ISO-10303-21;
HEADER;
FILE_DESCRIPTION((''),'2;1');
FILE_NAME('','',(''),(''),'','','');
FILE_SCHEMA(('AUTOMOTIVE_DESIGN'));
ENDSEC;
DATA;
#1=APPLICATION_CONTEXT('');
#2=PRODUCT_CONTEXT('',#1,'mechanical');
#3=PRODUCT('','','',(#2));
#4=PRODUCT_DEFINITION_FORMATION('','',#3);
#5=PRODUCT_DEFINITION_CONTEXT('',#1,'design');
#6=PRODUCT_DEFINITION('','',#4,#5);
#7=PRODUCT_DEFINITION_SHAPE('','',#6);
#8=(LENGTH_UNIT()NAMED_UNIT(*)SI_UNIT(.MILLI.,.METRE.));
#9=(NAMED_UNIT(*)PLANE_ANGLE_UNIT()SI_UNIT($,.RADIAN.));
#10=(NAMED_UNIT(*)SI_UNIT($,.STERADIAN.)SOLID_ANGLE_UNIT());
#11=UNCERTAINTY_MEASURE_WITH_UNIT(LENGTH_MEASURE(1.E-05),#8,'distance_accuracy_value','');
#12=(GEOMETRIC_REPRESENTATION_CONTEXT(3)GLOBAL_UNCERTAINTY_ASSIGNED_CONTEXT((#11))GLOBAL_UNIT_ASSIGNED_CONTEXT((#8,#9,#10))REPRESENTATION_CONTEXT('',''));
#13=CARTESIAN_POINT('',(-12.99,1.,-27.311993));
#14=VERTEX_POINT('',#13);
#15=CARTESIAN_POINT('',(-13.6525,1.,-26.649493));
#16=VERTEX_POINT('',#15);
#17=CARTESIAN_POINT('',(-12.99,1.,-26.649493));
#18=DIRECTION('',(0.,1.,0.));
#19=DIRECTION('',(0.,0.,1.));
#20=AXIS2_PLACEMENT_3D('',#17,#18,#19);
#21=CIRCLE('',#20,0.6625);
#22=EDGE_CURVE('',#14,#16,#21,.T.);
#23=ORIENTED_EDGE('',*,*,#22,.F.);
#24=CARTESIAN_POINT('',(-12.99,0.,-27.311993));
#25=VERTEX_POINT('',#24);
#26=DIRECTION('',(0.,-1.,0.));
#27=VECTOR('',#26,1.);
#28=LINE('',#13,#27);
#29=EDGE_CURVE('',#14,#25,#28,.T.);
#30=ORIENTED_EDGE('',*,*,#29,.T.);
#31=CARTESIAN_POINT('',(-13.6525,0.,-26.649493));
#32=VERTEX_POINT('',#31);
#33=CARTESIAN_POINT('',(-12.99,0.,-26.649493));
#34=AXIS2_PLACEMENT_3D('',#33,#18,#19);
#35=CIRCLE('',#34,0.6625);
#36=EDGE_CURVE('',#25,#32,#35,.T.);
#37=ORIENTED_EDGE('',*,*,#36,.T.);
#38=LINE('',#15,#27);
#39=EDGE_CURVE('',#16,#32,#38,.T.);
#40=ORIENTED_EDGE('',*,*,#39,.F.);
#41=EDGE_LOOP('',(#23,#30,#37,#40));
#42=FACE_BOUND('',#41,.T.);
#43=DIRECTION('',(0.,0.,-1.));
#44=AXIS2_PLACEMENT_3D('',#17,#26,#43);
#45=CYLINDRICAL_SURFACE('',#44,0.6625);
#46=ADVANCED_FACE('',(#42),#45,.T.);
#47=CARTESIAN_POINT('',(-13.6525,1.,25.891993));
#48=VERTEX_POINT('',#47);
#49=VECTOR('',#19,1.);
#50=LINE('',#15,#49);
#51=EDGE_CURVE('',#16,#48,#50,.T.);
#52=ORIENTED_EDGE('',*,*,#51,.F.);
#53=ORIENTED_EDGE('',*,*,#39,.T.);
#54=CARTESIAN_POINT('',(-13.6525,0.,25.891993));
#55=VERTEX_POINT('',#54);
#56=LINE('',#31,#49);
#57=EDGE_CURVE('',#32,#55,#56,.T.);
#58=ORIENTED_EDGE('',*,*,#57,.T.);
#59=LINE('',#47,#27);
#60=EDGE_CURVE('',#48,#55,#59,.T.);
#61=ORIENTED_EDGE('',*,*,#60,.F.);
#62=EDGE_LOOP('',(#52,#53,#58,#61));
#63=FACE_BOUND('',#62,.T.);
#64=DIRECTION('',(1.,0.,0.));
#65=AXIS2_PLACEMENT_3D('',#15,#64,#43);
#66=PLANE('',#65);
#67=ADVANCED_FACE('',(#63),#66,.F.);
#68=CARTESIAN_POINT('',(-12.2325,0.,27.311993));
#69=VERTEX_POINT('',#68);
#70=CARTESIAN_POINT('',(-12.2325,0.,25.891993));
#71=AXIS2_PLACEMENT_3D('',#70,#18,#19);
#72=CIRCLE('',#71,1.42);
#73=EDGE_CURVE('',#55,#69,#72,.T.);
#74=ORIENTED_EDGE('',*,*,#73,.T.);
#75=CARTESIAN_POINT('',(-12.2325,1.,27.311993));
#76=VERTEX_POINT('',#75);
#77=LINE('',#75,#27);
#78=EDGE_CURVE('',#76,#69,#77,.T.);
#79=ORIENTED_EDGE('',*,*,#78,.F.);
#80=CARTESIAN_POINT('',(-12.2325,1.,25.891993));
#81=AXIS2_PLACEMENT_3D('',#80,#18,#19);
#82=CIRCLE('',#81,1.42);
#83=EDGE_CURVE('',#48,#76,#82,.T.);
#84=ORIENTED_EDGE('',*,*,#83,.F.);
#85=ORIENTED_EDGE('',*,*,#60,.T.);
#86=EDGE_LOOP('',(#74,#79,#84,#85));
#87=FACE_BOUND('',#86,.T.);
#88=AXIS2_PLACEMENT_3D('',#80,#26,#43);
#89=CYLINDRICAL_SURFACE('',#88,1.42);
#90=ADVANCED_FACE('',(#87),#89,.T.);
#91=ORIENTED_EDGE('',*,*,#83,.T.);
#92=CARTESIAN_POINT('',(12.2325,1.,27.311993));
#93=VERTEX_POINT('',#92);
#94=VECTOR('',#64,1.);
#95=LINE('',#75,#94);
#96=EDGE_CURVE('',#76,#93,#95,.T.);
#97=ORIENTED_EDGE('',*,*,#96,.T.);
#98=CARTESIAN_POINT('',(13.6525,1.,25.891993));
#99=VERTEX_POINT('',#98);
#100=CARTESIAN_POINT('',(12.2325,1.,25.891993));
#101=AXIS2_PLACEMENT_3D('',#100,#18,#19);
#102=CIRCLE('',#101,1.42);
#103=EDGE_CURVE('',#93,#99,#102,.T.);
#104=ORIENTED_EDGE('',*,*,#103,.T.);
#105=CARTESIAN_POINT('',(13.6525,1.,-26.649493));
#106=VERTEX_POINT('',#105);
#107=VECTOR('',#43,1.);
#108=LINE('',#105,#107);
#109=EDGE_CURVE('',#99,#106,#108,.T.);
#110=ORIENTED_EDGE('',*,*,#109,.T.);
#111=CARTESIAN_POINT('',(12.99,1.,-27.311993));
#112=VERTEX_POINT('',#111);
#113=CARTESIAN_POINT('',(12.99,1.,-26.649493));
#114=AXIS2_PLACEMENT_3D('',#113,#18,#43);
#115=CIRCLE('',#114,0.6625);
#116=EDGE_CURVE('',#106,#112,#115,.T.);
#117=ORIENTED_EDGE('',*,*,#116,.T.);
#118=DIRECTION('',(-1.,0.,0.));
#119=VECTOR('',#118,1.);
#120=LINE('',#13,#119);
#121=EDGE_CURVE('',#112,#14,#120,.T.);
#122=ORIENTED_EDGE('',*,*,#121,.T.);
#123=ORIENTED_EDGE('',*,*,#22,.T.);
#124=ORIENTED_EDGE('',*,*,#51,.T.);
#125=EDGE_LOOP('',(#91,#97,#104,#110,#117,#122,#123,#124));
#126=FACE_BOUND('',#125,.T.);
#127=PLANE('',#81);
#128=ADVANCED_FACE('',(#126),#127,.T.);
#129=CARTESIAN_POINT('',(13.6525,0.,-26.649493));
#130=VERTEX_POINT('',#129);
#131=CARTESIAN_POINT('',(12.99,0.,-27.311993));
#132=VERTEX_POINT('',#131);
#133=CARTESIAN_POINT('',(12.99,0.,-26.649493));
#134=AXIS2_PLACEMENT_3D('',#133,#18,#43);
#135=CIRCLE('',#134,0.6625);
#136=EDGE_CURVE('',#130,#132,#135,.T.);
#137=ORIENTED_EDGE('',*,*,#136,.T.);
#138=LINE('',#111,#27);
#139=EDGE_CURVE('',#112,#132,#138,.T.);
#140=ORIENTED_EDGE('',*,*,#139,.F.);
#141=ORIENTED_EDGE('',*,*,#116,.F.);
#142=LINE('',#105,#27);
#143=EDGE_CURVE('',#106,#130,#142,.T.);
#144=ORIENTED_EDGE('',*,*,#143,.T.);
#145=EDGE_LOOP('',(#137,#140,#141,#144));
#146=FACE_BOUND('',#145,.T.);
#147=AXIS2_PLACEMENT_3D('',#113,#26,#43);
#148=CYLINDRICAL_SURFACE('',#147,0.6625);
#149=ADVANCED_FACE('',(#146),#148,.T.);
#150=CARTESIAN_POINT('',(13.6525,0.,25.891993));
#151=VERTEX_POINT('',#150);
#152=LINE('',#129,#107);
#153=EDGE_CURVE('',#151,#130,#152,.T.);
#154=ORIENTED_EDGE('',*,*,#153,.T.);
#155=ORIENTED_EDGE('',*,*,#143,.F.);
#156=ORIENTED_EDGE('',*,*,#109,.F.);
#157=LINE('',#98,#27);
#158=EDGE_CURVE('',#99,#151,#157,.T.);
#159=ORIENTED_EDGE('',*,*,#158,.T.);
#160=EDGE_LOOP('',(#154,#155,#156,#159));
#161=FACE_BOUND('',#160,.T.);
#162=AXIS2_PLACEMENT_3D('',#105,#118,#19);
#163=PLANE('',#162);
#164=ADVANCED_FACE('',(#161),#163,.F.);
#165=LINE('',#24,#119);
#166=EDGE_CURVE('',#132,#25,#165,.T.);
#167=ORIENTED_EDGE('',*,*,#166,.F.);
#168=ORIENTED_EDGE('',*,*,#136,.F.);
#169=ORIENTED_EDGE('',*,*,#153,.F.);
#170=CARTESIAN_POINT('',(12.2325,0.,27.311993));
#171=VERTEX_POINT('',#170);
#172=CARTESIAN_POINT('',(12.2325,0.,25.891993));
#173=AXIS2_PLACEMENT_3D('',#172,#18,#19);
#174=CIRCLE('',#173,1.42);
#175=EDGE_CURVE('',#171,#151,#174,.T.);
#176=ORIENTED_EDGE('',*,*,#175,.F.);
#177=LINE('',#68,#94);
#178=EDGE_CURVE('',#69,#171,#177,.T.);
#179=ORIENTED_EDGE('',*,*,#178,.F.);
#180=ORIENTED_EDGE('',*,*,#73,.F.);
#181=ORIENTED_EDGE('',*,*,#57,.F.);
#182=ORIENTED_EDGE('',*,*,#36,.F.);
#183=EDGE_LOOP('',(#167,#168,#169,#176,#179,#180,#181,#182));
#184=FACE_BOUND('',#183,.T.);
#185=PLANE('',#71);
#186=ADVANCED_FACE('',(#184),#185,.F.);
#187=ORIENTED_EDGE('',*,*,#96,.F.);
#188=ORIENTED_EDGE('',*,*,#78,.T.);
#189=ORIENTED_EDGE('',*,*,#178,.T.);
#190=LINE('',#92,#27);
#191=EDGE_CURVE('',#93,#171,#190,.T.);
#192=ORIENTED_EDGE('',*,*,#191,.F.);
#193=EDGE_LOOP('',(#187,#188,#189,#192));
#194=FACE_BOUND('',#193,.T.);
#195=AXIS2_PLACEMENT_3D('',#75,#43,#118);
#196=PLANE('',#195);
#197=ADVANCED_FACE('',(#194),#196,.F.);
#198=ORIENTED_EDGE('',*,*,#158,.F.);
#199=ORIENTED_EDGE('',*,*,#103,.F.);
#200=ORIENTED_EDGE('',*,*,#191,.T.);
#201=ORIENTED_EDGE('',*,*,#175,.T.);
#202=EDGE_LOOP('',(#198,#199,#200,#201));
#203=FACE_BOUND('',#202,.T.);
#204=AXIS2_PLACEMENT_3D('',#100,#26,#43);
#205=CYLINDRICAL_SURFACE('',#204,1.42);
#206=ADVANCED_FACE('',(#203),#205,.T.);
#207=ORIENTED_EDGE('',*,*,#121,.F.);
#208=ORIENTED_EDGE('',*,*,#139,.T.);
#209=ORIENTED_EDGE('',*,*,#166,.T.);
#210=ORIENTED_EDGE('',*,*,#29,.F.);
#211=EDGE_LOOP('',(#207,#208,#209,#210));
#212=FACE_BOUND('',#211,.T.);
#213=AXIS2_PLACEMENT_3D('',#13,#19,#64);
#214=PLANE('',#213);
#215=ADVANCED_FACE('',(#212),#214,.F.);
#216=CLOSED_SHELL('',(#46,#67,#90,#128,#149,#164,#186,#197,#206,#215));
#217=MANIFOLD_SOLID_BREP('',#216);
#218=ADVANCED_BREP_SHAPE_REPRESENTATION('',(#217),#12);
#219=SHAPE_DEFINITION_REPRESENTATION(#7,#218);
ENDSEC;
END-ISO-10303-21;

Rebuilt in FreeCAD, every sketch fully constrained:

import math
import FreeCAD as App
import Part
import Sketcher
from FreeCAD import Vector
Q = App.Units.Quantity

doc = App.newDocument("Part")
body = doc.addObject("PartDesign::Body", "Body")

# Sketch on XZ plane
sketch1 = body.newObject("Sketcher::SketchObject", "Sketch")
sketch1.AttachmentSupport = (doc.getObject("XZ_Plane"), [""])
sketch1.MapMode = "FlatFace"
sketch1.addGeometry(Part.LineSegment(Vector(13, -27.3, 0), Vector(-13, -27.3, 0)), False)
sketch1.addGeometry(Part.ArcOfCircle(Part.Circle(Vector(-13, -26.6, 0), Vector(0, 0, 1), 0.7), math.radians(180), math.radians(270)), False)
sketch1.addGeometry(Part.LineSegment(Vector(-13.7, -26.6, 0), Vector(-13.7, 25.9, 0)), False)
sketch1.addGeometry(Part.ArcOfCircle(Part.Circle(Vector(-12.2, 25.9, 0), Vector(0, 0, 1), 1.4), math.radians(90), math.radians(180)), False)
sketch1.addGeometry(Part.LineSegment(Vector(-12.2, 27.3, 0), Vector(12.2, 27.3, 0)), False)
sketch1.addGeometry(Part.ArcOfCircle(Part.Circle(Vector(12.2, 25.9, 0), Vector(0, 0, 1), 1.4), math.radians(0), math.radians(90)), False)
sketch1.addGeometry(Part.LineSegment(Vector(13.7, 25.9, 0), Vector(13.7, -26.6, 0)), False)
sketch1.addGeometry(Part.ArcOfCircle(Part.Circle(Vector(13, -26.6, 0), Vector(0, 0, 1), 0.7), math.radians(-90), math.radians(0)), False)
sketch1.addConstraint(Sketcher.Constraint("Tangent", 0, 2, 1, 2))
sketch1.addConstraint(Sketcher.Constraint("Tangent", 1, 1, 2, 1))
sketch1.addConstraint(Sketcher.Constraint("Tangent", 2, 2, 3, 2))
sketch1.addConstraint(Sketcher.Constraint("Tangent", 3, 1, 4, 1))
sketch1.addConstraint(Sketcher.Constraint("Tangent", 4, 2, 5, 2))
sketch1.addConstraint(Sketcher.Constraint("Tangent", 5, 1, 6, 1))
sketch1.addConstraint(Sketcher.Constraint("Tangent", 6, 2, 7, 2))
sketch1.addConstraint(Sketcher.Constraint("Tangent", 7, 1, 0, 1))
sketch1.addConstraint(Sketcher.Constraint("Horizontal", 0))
sketch1.addConstraint(Sketcher.Constraint("Vertical", 2))
sketch1.addConstraint(Sketcher.Constraint("Horizontal", 4))
sketch1.addConstraint(Sketcher.Constraint("Vertical", 6))
sketch1.addConstraint(Sketcher.Constraint("Equal", 3, 5))
sketch1.addConstraint(Sketcher.Constraint("Equal", 1, 7))
sketch1.addConstraint(Sketcher.Constraint("Radius", 3, Q("1.42 mm")))
sketch1.addConstraint(Sketcher.Constraint("DistanceX", 0, 2, 0, 1, Q("25.98 mm")))
sketch1.addConstraint(Sketcher.Constraint("Radius", 1, Q("0.6625 mm")))
sketch1.addConstraint(Sketcher.Constraint("DistanceX", 1, 3, -1, 1, Q("12.99 mm")))
sketch1.addConstraint(Sketcher.Constraint("DistanceY", 2, 1, 2, 2, Q("52.541486 mm")))
sketch1.addConstraint(Sketcher.Constraint("DistanceY", 1, 3, -1, 1, Q("26.649493 mm")))
pad1 = body.newObject("PartDesign::Pad", "Pad")
pad1.Profile = sketch1
pad1.Length = 1
pad1.Reversed = True

doc.recompute()
